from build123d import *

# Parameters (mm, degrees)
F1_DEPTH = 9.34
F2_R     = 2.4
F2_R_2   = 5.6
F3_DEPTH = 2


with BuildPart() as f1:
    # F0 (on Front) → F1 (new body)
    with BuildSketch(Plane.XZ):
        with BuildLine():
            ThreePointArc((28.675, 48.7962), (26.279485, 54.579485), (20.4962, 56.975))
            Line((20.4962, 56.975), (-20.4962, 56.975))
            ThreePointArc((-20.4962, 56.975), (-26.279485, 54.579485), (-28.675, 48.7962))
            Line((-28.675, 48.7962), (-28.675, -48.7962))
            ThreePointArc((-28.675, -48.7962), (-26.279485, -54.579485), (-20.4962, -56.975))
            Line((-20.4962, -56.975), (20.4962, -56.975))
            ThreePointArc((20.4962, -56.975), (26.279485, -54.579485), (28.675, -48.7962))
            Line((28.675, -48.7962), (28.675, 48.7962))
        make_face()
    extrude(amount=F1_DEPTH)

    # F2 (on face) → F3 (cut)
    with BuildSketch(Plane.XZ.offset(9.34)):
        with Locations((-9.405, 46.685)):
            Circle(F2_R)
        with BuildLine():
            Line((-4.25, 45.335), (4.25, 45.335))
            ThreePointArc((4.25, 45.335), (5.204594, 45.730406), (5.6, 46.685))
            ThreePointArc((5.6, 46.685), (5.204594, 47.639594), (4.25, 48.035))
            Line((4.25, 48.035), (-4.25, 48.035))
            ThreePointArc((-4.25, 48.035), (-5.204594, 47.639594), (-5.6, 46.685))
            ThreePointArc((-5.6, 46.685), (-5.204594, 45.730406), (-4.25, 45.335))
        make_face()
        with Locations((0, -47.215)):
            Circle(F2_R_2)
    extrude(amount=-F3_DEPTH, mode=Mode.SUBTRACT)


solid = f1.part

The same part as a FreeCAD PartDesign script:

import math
import FreeCAD as App
import Part
import Sketcher
from FreeCAD import Vector

doc = App.newDocument("Part")
body = doc.addObject("PartDesign::Body", "Body")

sketch1 = body.newObject("Sketcher::SketchObject", "Sketch")
sketch1.AttachmentSupport = (doc.getObject("XZ_Plane"), [""])
sketch1.MapMode = "FlatFace"
sketch1.addGeometry([
    Part.ArcOfCircle(Part.Circle(Vector(20.4962, 48.7962, 0), Vector(0, 0, 1), 8.1788), math.radians(-0.000001), math.radians(90.000001)),
    Part.LineSegment(Vector(20.4962, 56.975, 0), Vector(-20.4962, 56.975, 0)),
    Part.ArcOfCircle(Part.Circle(Vector(-20.4962, 48.7962, 0), Vector(0, 0, 1), 8.1788), math.radians(89.999999), math.radians(180.000001)),
    Part.LineSegment(Vector(-28.675, 48.7962, 0), Vector(-28.675, -48.7962, 0)),
    Part.ArcOfCircle(Part.Circle(Vector(-20.4962, -48.7962, 0), Vector(0, 0, 1), 8.1788), math.radians(179.999999), math.radians(270.000001)),
    Part.LineSegment(Vector(-20.4962, -56.975, 0), Vector(20.4962, -56.975, 0)),
    Part.ArcOfCircle(Part.Circle(Vector(20.4962, -48.7962, 0), Vector(0, 0, 1), 8.1788), math.radians(-90.000001), math.radians(0.000001)),
    Part.LineSegment(Vector(28.675, -48.7962, 0), Vector(28.675, 48.7962, 0)),
], False)
sketch1.addConstraint([
    Sketcher.Constraint("Tangent", 0, 2, 1, 1),
    Sketcher.Constraint("Tangent", 1, 2, 2, 1),
    Sketcher.Constraint("Tangent", 2, 2, 3, 1),
    Sketcher.Constraint("Tangent", 3, 2, 4, 1),
    Sketcher.Constraint("Tangent", 4, 2, 5, 1),
    Sketcher.Constraint("Tangent", 5, 2, 6, 1),
    Sketcher.Constraint("Tangent", 6, 2, 7, 1),
    Sketcher.Constraint("Tangent", 7, 2, 0, 1),
    Sketcher.Constraint("Horizontal", 1),
    Sketcher.Constraint("Vertical", 3),
    Sketcher.Constraint("Horizontal", 5),
    Sketcher.Constraint("Vertical", 7),
    Sketcher.Constraint("Equal", 0, 2),
    Sketcher.Constraint("Equal", 2, 4),
    Sketcher.Constraint("Equal", 4, 6),
    Sketcher.Constraint("Symmetric", 0, 3, 4, 3, -1, 1),
    Sketcher.Constraint("Radius", 0, 8.1788),
    Sketcher.Constraint("DistanceX", 3, 2, 6, 2, 57.35),
    Sketcher.Constraint("DistanceY", 3, 2, 3, 1, 97.5924),
])
pad1 = body.newObject("PartDesign::Pad", "Pad")
pad1.Profile = sketch1
pad1.Length = 9.34

sketch2 = body.newObject("Sketcher::SketchObject", "Sketch001")
sketch2.AttachmentSupport = (doc.getObject("XZ_Plane"), [""])
sketch2.MapMode = "FlatFace"
sketch2.AttachmentOffset = App.Placement(Vector(0, 0, 9.34), App.Rotation())
sketch2.addGeometry([
    Part.Circle(Vector(-9.405, 46.685, 0), Vector(0, 0, 1), 2.4),
    Part.LineSegment(Vector(-4.25, 45.335, 0), Vector(4.25, 45.335, 0)),
    Part.ArcOfCircle(Part.Circle(Vector(4.249999, 46.685001, 0), Vector(0, 0, 1), 1.350001), math.radians(-89.999978), math.radians(-0.000022)),
    Part.ArcOfCircle(Part.Circle(Vector(4.249999, 46.684999, 0), Vector(0, 0, 1), 1.350001), math.radians(0.000022), math.radians(89.999978)),
    Part.LineSegment(Vector(4.25, 48.035, 0), Vector(-4.25, 48.035, 0)),
    Part.ArcOfCircle(Part.Circle(Vector(-4.249999, 46.684999, 0), Vector(0, 0, 1), 1.350001), math.radians(90.000022), math.radians(179.999978)),
    Part.ArcOfCircle(Part.Circle(Vector(-4.249999, 46.685001, 0), Vector(0, 0, 1), 1.350001), math.radians(-179.999978), math.radians(-90.000022)),
    Part.Circle(Vector(0, -47.215, 0), Vector(0, 0, 1), 5.6),
], False)
sketch2.addConstraint([
    Sketcher.Constraint("Tangent", 1, 2, 2, 1),
    Sketcher.Constraint("Tangent", 2, 2, 3, 1),
    Sketcher.Constraint("Tangent", 3, 2, 4, 1),
    Sketcher.Constraint("Tangent", 4, 2, 5, 1),
    Sketcher.Constraint("Tangent", 5, 2, 6, 1),
    Sketcher.Constraint("Tangent", 6, 2, 1, 1),
    Sketcher.Constraint("Horizontal", 1),
    Sketcher.Constraint("Horizontal", 4),
    Sketcher.Constraint("Equal", 2, 3),
    Sketcher.Constraint("Equal", 3, 5),
    Sketcher.Constraint("Symmetric", 2, 2, 5, 2, -2),
    Sketcher.Constraint("PointOnObject", 7, 3, -2),
    Sketcher.Constraint("Horizontal", 0, 3, 2, 3),
    Sketcher.Constraint("Horizontal", 6, 3, 2, 2),
    Sketcher.Constraint("Diameter", 0, 4.8),
    Sketcher.Constraint("Diameter", 7, 11.2),
    Sketcher.Constraint("Radius", 2, 1.350001),
    Sketcher.Constraint("DistanceX", 1, 1, 1, 2, 8.5),
    Sketcher.Constraint("DistanceY", 7, 3, 3, 3, 93.899999),
    Sketcher.Constraint("DistanceX", 0, 3, -1, 1, 9.405),
    Sketcher.Constraint("DistanceY", -1, 1, 0, 3, 46.685),
])
pocket1 = body.newObject("PartDesign::Pocket", "Pocket")
pocket1.Profile = sketch2
pocket1.Length = 2

doc.recompute()
